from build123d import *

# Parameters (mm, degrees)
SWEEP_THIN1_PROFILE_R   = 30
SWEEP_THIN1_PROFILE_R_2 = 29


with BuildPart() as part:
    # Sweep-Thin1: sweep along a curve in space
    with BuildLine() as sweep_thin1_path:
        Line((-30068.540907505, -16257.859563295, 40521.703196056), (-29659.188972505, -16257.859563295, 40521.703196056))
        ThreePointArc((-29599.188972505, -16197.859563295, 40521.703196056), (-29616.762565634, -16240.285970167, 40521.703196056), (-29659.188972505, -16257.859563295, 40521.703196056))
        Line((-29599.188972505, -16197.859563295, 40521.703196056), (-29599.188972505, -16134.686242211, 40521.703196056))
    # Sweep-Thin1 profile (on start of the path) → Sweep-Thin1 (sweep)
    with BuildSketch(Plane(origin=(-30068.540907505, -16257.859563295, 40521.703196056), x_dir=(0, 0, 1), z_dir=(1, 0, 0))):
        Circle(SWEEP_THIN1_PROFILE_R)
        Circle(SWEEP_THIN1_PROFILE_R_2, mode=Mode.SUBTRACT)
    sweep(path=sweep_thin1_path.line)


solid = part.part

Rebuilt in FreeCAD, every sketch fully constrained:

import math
import FreeCAD as App
import Part
import Sketcher

V = App.Vector

doc = App.newDocument("Part")
body = doc.addObject("PartDesign::Body", "Body")

# Sketch on YZ plane
sketch1 = body.newObject("Sketcher::SketchObject", "Sketch")
sketch1.AttachmentSupport = (doc.getObject("YZ_Plane"), [""])
sketch1.MapMode = "FlatFace"
sketch1.AttachmentOffset = App.Placement(V(0, 0, -30068.540908), App.Rotation())
sketch1.addGeometry([
    Part.Circle(V(-16258, 40522, 0), V(0, 0, 1), 30),
    Part.Circle(V(-16258, 40522, 0), V(0, 0, 1), 29),
], False)
sketch1.addConstraint([
    Sketcher.Constraint("Coincident", 1, 3, 0, 3),
    Sketcher.Constraint("Diameter", 0, 60.0),
    Sketcher.Constraint("Diameter", 1, 58.0),
    Sketcher.Constraint("DistanceX", 0, 3, -1, 1, 16257.859563),
    Sketcher.Constraint("DistanceY", -1, 1, 0, 3, 40521.703196),
])

# Sketch on XY plane
sketch2 = body.newObject("Sketcher::SketchObject", "Sketch001")
sketch2.AttachmentSupport = (doc.getObject("XY_Plane"), [""])
sketch2.MapMode = "FlatFace"
sketch2.AttachmentOffset = App.Placement(V(0, 0, 40521.703196), App.Rotation())
sketch2.addGeometry([
    Part.LineSegment(V(-30069, -16258, 0), V(-29659, -16258, 0)),
    Part.ArcOfCircle(Part.Circle(V(-29659, -16198, 0), V(0, 0, 1), 60), math.radians(-90), math.radians(0)),
    Part.LineSegment(V(-29599, -16198, 0), V(-29599, -16135, 0)),
], False)
sketch2.addConstraint([
    Sketcher.Constraint("Tangent", 0, 2, 1, 1),
    Sketcher.Constraint("Tangent", 1, 2, 2, 1),
    Sketcher.Constraint("Horizontal", 0),
    Sketcher.Constraint("Vertical", 2),
    Sketcher.Constraint("Radius", 1, 60.0),
    Sketcher.Constraint("DistanceY", 2, 1, 2, 2, 63.173321),
    Sketcher.Constraint("DistanceX", 0, 1, 0, 2, 409.351935),
    Sketcher.Constraint("DistanceX", 1, 3, -1, 1, 29659.188973),
    Sketcher.Constraint("DistanceY", 1, 3, -1, 1, 16197.859563),
])
doc.recompute()

additivepipe = body.newObject("PartDesign::AdditivePipe", "AdditivePipe")
additivepipe.Profile = sketch1
additivepipe.Spine = (sketch2, ["Edge1", "Edge2", "Edge3"])

doc.recompute()
